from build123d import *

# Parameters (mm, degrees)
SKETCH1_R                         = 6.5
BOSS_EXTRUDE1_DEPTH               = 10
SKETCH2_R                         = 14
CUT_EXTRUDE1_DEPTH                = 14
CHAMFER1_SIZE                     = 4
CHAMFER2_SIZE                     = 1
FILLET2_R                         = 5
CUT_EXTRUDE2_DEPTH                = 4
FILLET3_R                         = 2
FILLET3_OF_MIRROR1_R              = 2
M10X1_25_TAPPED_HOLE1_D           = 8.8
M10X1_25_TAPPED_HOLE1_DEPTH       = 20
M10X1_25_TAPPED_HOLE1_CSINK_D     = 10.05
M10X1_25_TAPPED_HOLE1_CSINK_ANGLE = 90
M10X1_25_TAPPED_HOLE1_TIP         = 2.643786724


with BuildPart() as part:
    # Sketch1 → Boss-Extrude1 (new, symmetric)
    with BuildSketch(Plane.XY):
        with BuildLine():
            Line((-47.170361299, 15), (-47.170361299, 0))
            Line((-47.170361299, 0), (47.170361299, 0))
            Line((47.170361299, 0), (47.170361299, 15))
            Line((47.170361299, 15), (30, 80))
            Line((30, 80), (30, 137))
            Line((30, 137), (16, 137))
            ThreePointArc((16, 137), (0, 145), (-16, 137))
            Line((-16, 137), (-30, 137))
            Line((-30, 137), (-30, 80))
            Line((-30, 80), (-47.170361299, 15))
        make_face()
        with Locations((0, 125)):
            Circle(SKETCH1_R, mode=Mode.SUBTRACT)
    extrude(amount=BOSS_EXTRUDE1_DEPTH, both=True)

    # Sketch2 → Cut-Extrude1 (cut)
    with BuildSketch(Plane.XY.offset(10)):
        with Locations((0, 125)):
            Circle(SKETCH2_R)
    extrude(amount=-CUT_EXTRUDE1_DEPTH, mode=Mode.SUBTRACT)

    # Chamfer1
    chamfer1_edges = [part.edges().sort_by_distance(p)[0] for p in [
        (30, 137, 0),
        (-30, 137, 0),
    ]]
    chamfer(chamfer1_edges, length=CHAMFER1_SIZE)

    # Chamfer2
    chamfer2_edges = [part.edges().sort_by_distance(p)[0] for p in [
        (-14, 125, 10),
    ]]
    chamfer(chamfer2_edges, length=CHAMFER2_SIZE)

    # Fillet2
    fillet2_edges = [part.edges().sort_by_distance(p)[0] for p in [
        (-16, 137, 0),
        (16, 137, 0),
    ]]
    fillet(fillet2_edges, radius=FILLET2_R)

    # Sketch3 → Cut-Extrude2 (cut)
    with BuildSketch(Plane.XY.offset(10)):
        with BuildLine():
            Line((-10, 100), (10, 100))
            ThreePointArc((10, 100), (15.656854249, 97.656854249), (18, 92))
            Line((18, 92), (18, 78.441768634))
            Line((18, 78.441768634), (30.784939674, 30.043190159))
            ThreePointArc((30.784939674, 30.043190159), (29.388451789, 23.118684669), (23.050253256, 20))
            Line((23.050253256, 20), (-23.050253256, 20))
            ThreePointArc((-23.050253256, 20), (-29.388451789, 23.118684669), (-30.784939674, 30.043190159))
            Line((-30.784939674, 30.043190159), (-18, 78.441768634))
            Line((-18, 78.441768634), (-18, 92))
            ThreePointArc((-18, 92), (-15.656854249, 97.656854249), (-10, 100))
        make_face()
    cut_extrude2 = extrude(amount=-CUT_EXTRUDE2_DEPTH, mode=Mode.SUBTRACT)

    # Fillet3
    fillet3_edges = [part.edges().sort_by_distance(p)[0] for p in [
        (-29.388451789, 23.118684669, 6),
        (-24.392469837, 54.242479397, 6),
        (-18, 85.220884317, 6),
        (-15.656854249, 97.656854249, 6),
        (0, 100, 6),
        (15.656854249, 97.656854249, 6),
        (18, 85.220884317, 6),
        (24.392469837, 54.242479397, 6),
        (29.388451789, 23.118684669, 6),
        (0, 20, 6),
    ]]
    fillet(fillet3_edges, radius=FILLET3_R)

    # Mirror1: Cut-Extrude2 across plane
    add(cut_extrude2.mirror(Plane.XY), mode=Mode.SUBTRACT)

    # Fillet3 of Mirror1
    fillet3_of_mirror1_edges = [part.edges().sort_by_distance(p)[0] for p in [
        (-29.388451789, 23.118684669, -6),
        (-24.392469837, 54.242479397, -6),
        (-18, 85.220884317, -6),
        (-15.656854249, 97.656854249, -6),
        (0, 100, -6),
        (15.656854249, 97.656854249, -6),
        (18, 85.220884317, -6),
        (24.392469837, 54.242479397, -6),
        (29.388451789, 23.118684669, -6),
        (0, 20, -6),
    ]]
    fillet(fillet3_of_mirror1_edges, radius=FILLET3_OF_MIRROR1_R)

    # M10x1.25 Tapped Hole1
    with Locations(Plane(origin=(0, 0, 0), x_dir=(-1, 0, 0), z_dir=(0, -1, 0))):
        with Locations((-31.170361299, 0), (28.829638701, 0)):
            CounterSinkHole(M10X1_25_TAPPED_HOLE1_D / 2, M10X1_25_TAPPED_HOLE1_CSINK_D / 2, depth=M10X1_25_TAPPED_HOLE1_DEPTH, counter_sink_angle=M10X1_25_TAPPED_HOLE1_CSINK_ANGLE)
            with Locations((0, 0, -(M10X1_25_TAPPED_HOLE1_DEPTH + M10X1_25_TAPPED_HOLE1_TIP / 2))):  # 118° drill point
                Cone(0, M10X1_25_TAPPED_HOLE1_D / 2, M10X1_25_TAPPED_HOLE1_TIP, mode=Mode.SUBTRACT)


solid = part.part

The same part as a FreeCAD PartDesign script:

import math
import FreeCAD as App
import Part
import Sketcher
from FreeCAD import Vector
Q = App.Units.Quantity


def edges_at(feature, points):
    """Names of the edges that pass closest to the given points."""
    edges = feature.Shape.Edges
    near = lambda p: min(range(len(edges)), key=lambda i: edges[i].distToShape(Part.Vertex(*p))[0])
    return sorted({f"Edge{near(p) + 1}" for p in points})

doc = App.newDocument("Part")
body = doc.addObject("PartDesign::Body", "Body")

# Sketch on XY plane
sketch1 = body.newObject("Sketcher::SketchObject", "Sketch")
sketch1.AttachmentSupport = (doc.getObject("XY_Plane"), [""])
sketch1.MapMode = "FlatFace"
sketch1.addGeometry([
    Part.LineSegment(Vector(-47, 15, 0), Vector(-47, 0, 0)),  # 0
    Part.LineSegment(Vector(-47, 0, 0), Vector(47, 0, 0)),  # 1
    Part.LineSegment(Vector(47, 0, 0), Vector(47, 15, 0)),  # 2
    Part.LineSegment(Vector(47, 15, 0), Vector(30, 80, 0)),  # 3
    Part.LineSegment(Vector(30, 80, 0), Vector(30, 137, 0)),  # 4
    Part.LineSegment(Vector(30, 137, 0), Vector(16, 137, 0)),  # 5
    Part.ArcOfCircle(Part.Circle(Vector(0, 125, 0), Vector(0, 0, 1), 20), math.radians(37), math.radians(143)),  # 6
    Part.LineSegment(Vector(-16, 137, 0), Vector(-30, 137, 0)),  # 7
    Part.LineSegment(Vector(-30, 137, 0), Vector(-30, 80, 0)),  # 8
    Part.LineSegment(Vector(-30, 80, 0), Vector(-47, 15, 0)),  # 9
    Part.Circle(Vector(0, 125, 0), Vector(0, 0, 1), 6),  # 10
], False)
sketch1.addConstraint([
    Sketcher.Constraint("Coincident", 0, 2, 1, 1),
    Sketcher.Constraint("Coincident", 1, 2, 2, 1),
    Sketcher.Constraint("Coincident", 2, 2, 3, 1),
    Sketcher.Constraint("Coincident", 3, 2, 4, 1),
    Sketcher.Constraint("Coincident", 4, 2, 5, 1),
    Sketcher.Constraint("Coincident", 5, 2, 6, 1),
    Sketcher.Constraint("Coincident", 6, 2, 7, 1),
    Sketcher.Constraint("Coincident", 7, 2, 8, 1),
    Sketcher.Constraint("Coincident", 8, 2, 9, 1),
    Sketcher.Constraint("Coincident", 9, 2, 0, 1),
    Sketcher.Constraint("Vertical", 0),
    Sketcher.Constraint("Horizontal", 1),
    Sketcher.Constraint("Vertical", 2),
    Sketcher.Constraint("Vertical", 4),
    Sketcher.Constraint("Horizontal", 5),
    Sketcher.Constraint("Horizontal", 7),
    Sketcher.Constraint("Vertical", 8),
    Sketcher.Constraint("Coincident", 10, 3, 6, 3),
    Sketcher.Constraint("Symmetric", 0, 2, 1, 2, -1, 1),
    Sketcher.Constraint("Symmetric", 5, 2, 6, 2, -2),
    Sketcher.Constraint("Symmetric", 3, 2, 8, 2, -2),
    Sketcher.Constraint("Horizontal", 2, 2, 9, 2),
    Sketcher.Constraint("Diameter", 10, Q("13 mm")),
    Sketcher.Constraint("Radius", 6, Q("20 mm")),
    Sketcher.Constraint("DistanceX", 5, 2, 5, 1, Q("14 mm")),
    Sketcher.Constraint("DistanceY", 0, 2, 0, 1, Q("15 mm")),
    Sketcher.Constraint("DistanceY", 4, 1, 4, 2, Q("57 mm")),
    Sketcher.Constraint("DistanceY", -1, 1, 6, 3, Q("125 mm")),
    Sketcher.Constraint("DistanceX", -1, 1, 3, 2, Q("30 mm")),
    Sketcher.Constraint("DistanceX", 1, 1, 1, 2, Q("94.340723 mm")),
])
pad1 = body.newObject("PartDesign::Pad", "Pad")
pad1.Profile = sketch1
pad1.Length = 20
pad1.Midplane = True

# Sketch on XY plane
sketch2 = body.newObject("Sketcher::SketchObject", "Sketch001")
sketch2.AttachmentSupport = (doc.getObject("XY_Plane"), [""])
sketch2.MapMode = "FlatFace"
sketch2.AttachmentOffset = App.Placement(Vector(0, 0, 10), App.Rotation())
sketch2.addGeometry(Part.Circle(Vector(0, 125, 0), Vector(0, 0, 1), 14), False)
sketch2.addConstraint([
    Sketcher.Constraint("PointOnObject", 0, 3, -2),
    Sketcher.Constraint("Diameter", 0, Q("28 mm")),
    Sketcher.Constraint("DistanceY", -1, 1, 0, 3, Q("125 mm")),
])
pocket1 = body.newObject("PartDesign::Pocket", "Pocket")
pocket1.Profile = sketch2
pocket1.Length = 14
doc.recompute()

chamfer = body.newObject("PartDesign::Chamfer", "Chamfer")
chamfer.Base = (pocket1, edges_at(pocket1, [(30, 137, 0), (-30, 137, 0)]))
chamfer.Size = 4
doc.recompute()

chamfer2 = body.newObject("PartDesign::Chamfer", "Chamfer001")
chamfer2.Base = (chamfer, edges_at(chamfer, [(-14, 125, 10)]))
chamfer2.Size = 1
doc.recompute()

fillet = body.newObject("PartDesign::Fillet", "Fillet")
fillet.Base = (chamfer2, edges_at(chamfer2, [(-16, 137, 0), (16, 137, 0)]))
fillet.Radius = 5

# Sketch on XY plane
sketch3 = body.newObject("Sketcher::SketchObject", "Sketch002")
sketch3.AttachmentSupport = (doc.getObject("XY_Plane"), [""])
sketch3.MapMode = "FlatFace"
sketch3.AttachmentOffset = App.Placement(Vector(0, 0, 10), App.Rotation())
sketch3.addGeometry([
    Part.LineSegment(Vector(10, 100, 0), Vector(-10, 100, 0)),  # 0
    Part.ArcOfCircle(Part.Circle(Vector(-10, 92, 0), Vector(0, 0, 1), 8), math.radians(90), math.radians(180)),  # 1
    Part.LineSegment(Vector(-18, 92, 0), Vector(-18, 78, 0)),  # 2
    Part.LineSegment(Vector(-18, 78, 0), Vector(-31, 30, 0)),  # 3
    Part.ArcOfCircle(Part.Circle(Vector(-23, 28, 0), Vector(0, 0, 1), 8), math.radians(165), math.radians(270)),  # 4
    Part.LineSegment(Vector(-23, 20, 0), Vector(23, 20, 0)),  # 5
    Part.ArcOfCircle(Part.Circle(Vector(23, 28, 0), Vector(0, 0, 1), 8), math.radians(-90), math.radians(15)),  # 6
    Part.LineSegment(Vector(31, 30, 0), Vector(18, 78, 0)),  # 7
    Part.LineSegment(Vector(18, 78, 0), Vector(18, 92, 0)),  # 8
    Part.ArcOfCircle(Part.Circle(Vector(10, 92, 0), Vector(0, 0, 1), 8), math.radians(0), math.radians(90)),  # 9
], False)
sketch3.addConstraint([
    Sketcher.Constraint("Tangent", 0, 2, 1, 1),
    Sketcher.Constraint("Tangent", 1, 2, 2, 1),
    Sketcher.Constraint("Coincident", 2, 2, 3, 1),
    Sketcher.Constraint("Tangent", 3, 2, 4, 1),
    Sketcher.Constraint("Tangent", 4, 2, 5, 1),
    Sketcher.Constraint("Tangent", 5, 2, 6, 1),
    Sketcher.Constraint("Tangent", 6, 2, 7, 1),
    Sketcher.Constraint("Coincident", 7, 2, 8, 1),
    Sketcher.Constraint("Tangent", 8, 2, 9, 1),
    Sketcher.Constraint("Tangent", 9, 2, 0, 1),
    Sketcher.Constraint("Horizontal", 0),
    Sketcher.Constraint("Vertical", 2),
    Sketcher.Constraint("Horizontal", 5),
    Sketcher.Constraint("Vertical", 8),
    Sketcher.Constraint("Equal", 1, 4),
    Sketcher.Constraint("Equal", 4, 6),
    Sketcher.Constraint("Equal", 6, 9),
    Sketcher.Constraint("Symmetric", 3, 2, 6, 2, -2),
    Sketcher.Constraint("Horizontal", 2, 2, 7, 2),
    Sketcher.Constraint("Radius", 1, Q("8 mm")),
    Sketcher.Constraint("DistanceX", 0, 2, 0, 1, Q("20 mm")),
    Sketcher.Constraint("DistanceY", -1, 1, 1, 3, Q("92 mm")),
    Sketcher.Constraint("DistanceY", -1, 1, 4, 3, Q("28 mm")),
    Sketcher.Constraint("DistanceY", 2, 2, 2, 1, Q("13.558231 mm")),
    Sketcher.Constraint("DistanceX", 5, 1, 5, 2, Q("46.100507 mm")),
])
pocket2 = body.newObject("PartDesign::Pocket", "Pocket001")
pocket2.Profile = sketch3
pocket2.Length = 4
doc.recompute()

fillet2 = body.newObject("PartDesign::Fillet", "Fillet001")
fillet2.Base = (pocket2, edges_at(pocket2, [
    (-29.388, 23.119, 6),
    (-24.392, 54.242, 6),
    (-18, 85.221, 6),
    (-15.657, 97.657, 6),
    (0, 100, 6),
    (15.657, 97.657, 6),
    (18, 85.221, 6),
    (24.392, 54.242, 6),
    (29.388, 23.119, 6),
    (0, 20, 6),
]))
fillet2.Radius = 2
doc.recompute()

mirrored = body.newObject("PartDesign::Mirrored", "Mirrored")
mirrored.Originals = [pocket2]
mirrored.MirrorPlane = (doc.getObject("XY_Plane"), [""])
body.Tip = mirrored
doc.recompute()

fillet3 = body.newObject("PartDesign::Fillet", "Fillet002")
fillet3.Base = (mirrored, edges_at(mirrored, [
    (-29.388, 23.119, -6),
    (-24.392, 54.242, -6),
    (-18, 85.221, -6),
    (-15.657, 97.657, -6),
    (0, 100, -6),
    (15.657, 97.657, -6),
    (18, 85.221, -6),
    (24.392, 54.242, -6),
    (29.388, 23.119, -6),
    (0, 20, -6),
]))
fillet3.Radius = 2

# Sketch on XZ plane
sketch4 = body.newObject("Sketcher::SketchObject", "Sketch003")
sketch4.AttachmentSupport = (doc.getObject("XZ_Plane"), [""])
sketch4.MapMode = "FlatFace"
sketch4.addGeometry([
    Part.Circle(Vector(31.2, 0, 0), Vector(0, 0, 1), 4.4),
    Part.Circle(Vector(-28.8, 0, 0), Vector(0, 0, 1), 4.4),
], False)
sketch4.addConstraint([
    Sketcher.Constraint("Equal", 0, 1),
    Sketcher.Constraint("PointOnObject", 0, 3, -1),
    Sketcher.Constraint("PointOnObject", 1, 3, -1),
    Sketcher.Constraint("Diameter", 0, Q("8.8 mm")),
    Sketcher.Constraint("DistanceX", 1, 3, 0, 3, Q("60 mm")),
    Sketcher.Constraint("DistanceX", -1, 1, 0, 3, Q("31.170361 mm")),
])
doc.recompute()
hole = body.newObject("PartDesign::Hole", "Hole")
hole.Profile = sketch4
hole.ThreadType = "None"
hole.Diameter = 8.8
hole.DepthType = "Dimension"
hole.Depth = 20
hole.DrillPoint = "Angled"
hole.DrillPointAngle = 118
hole.HoleCutType = "Countersink"
hole.HoleCutDiameter = 10.05
hole.HoleCutCountersinkAngle = 90

doc.recompute()
